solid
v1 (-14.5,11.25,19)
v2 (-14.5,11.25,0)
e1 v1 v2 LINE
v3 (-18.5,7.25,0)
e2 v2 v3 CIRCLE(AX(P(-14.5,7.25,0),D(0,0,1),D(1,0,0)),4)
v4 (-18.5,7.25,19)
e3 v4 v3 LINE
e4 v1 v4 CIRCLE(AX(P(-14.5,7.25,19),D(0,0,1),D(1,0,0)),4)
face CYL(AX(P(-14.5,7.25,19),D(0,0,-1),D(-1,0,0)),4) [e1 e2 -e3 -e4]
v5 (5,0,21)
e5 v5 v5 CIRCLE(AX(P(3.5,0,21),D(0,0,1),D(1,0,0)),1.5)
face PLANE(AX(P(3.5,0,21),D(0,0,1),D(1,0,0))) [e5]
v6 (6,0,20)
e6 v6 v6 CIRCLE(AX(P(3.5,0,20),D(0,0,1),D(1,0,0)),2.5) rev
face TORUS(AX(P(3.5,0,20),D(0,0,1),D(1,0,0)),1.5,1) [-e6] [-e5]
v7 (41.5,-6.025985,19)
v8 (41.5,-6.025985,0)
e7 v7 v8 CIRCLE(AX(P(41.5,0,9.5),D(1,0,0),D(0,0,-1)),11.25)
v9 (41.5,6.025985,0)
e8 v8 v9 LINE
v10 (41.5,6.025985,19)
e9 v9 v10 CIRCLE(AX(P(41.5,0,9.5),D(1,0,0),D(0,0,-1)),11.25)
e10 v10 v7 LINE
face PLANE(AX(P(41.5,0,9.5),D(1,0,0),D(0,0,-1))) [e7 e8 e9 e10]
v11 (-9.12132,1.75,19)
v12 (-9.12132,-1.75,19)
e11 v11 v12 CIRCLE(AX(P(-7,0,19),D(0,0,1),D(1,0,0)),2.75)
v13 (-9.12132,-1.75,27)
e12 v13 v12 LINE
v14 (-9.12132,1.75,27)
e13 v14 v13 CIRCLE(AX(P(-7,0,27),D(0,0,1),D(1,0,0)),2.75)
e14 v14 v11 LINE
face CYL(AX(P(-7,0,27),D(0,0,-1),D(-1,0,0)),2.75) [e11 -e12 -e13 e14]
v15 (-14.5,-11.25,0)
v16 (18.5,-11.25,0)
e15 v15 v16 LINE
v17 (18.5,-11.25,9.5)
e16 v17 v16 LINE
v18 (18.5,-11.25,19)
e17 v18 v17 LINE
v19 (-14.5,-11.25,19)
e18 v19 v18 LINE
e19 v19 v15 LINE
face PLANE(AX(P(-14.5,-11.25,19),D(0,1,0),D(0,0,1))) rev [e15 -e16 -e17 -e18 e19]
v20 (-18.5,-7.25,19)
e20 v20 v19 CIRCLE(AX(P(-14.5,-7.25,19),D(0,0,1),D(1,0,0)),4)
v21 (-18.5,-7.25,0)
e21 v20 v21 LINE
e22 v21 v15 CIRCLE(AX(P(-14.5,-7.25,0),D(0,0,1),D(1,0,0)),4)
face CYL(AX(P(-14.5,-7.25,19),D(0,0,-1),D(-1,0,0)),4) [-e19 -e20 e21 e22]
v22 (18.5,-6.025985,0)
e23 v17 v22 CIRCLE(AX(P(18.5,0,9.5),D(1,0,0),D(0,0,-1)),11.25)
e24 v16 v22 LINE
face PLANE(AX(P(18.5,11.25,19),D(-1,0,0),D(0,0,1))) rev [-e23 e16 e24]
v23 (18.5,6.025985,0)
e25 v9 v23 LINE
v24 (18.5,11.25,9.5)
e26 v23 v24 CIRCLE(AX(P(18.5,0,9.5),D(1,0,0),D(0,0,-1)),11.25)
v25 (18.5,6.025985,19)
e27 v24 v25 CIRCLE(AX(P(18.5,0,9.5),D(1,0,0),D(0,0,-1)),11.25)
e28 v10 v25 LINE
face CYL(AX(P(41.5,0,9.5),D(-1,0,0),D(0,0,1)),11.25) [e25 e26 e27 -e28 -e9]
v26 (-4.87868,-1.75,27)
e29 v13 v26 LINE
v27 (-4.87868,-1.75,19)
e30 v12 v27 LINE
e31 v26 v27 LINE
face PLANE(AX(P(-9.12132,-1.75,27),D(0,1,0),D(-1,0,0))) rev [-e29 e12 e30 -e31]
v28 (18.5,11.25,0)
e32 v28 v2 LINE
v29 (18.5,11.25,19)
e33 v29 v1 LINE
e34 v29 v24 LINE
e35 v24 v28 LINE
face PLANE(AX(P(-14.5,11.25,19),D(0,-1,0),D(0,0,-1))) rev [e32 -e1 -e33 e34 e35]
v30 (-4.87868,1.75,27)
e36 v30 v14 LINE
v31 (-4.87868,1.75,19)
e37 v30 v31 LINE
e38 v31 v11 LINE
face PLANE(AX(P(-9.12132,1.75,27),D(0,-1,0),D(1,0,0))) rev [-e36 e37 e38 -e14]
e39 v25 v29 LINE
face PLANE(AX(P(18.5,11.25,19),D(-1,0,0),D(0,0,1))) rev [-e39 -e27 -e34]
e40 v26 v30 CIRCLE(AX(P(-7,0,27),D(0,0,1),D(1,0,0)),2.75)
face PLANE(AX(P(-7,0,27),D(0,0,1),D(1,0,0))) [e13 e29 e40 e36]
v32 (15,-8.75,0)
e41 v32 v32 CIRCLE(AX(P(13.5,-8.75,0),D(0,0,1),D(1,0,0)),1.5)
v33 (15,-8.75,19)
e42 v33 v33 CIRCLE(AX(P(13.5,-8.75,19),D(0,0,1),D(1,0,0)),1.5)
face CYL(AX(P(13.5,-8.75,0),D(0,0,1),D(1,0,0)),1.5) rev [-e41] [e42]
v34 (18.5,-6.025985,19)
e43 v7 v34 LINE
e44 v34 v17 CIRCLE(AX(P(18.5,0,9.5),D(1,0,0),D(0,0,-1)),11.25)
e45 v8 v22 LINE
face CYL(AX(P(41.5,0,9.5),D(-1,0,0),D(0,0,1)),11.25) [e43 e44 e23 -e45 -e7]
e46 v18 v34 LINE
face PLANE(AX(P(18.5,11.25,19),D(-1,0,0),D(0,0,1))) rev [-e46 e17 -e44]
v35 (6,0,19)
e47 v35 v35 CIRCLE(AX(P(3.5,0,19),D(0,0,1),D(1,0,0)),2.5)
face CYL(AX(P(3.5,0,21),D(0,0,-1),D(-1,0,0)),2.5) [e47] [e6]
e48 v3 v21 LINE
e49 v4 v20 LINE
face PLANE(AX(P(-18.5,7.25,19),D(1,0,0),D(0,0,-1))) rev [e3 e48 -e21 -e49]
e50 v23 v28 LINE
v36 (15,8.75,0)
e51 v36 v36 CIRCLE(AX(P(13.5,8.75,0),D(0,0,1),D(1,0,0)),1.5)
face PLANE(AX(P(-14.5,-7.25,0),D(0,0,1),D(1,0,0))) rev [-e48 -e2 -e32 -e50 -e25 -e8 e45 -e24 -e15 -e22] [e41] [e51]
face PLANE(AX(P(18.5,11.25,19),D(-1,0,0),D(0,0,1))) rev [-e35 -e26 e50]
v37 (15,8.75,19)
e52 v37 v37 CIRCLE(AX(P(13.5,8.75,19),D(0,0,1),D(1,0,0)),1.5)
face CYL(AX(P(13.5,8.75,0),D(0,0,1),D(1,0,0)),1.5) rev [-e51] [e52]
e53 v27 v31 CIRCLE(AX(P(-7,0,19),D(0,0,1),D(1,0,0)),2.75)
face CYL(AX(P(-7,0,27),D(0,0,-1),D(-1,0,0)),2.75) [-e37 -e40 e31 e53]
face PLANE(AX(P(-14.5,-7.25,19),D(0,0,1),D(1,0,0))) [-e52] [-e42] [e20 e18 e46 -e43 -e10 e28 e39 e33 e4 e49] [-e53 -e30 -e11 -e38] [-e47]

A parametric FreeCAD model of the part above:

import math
import FreeCAD as App
import Part
import Sketcher
Q = App.Units.Quantity


def edges_at(feature, points):
    """Names of the edges that pass closest to the given points."""
    edges = feature.Shape.Edges
    near = lambda p: min(range(len(edges)), key=lambda i: edges[i].distToShape(Part.Vertex(*p))[0])
    return sorted({f"Edge{near(p) + 1}" for p in points})

doc = App.newDocument("Part")
body = doc.addObject("PartDesign::Body", "Body")

# Sketch on XY plane
sketch1 = body.newObject("Sketcher::SketchObject", "Sketch")
sketch1.AttachmentSupport = (doc.getObject("XY_Plane"), [""])
sketch1.MapMode = "FlatFace"
sketch1.addGeometry([
    Part.LineSegment(App.Vector(18.5, 11.2, 0), App.Vector(-14.5, 11.2, 0)),  # 0
    Part.ArcOfCircle(Part.Circle(App.Vector(-14.5, 7.3, 0), App.Vector(0, 0, 1), 4), math.radians(90), math.radians(180)),  # 1
    Part.LineSegment(App.Vector(-18.5, 7.2, 0), App.Vector(-18.5, -7.2, 0)),  # 2
    Part.ArcOfCircle(Part.Circle(App.Vector(-14.5, -7.3, 0), App.Vector(0, 0, 1), 4), math.radians(180), math.radians(270)),  # 3
    Part.LineSegment(App.Vector(-14.5, -11.2, 0), App.Vector(18.5, -11.2, 0)),  # 4
    Part.LineSegment(App.Vector(18.5, -11.2, 0), App.Vector(18.5, 11.2, 0)),  # 5
], False)
sketch1.addConstraint([
    Sketcher.Constraint("Tangent", 0, 2, 1, 1),
    Sketcher.Constraint("Tangent", 1, 2, 2, 1),
    Sketcher.Constraint("Tangent", 2, 2, 3, 1),
    Sketcher.Constraint("Tangent", 3, 2, 4, 1),
    Sketcher.Constraint("Coincident", 4, 2, 5, 1),
    Sketcher.Constraint("Coincident", 5, 2, 0, 1),
    Sketcher.Constraint("Horizontal", 0),
    Sketcher.Constraint("Vertical", 2),
    Sketcher.Constraint("Horizontal", 4),
    Sketcher.Constraint("Vertical", 5),
    Sketcher.Constraint("Equal", 1, 3),
    Sketcher.Constraint("Radius", 1, Q("4 mm")),
    Sketcher.Constraint("DistanceX", 0, 2, 0, 1, Q("33 mm")),
    Sketcher.Constraint("DistanceY", 2, 2, 2, 1, Q("14.5 mm")),
    Sketcher.Constraint("DistanceX", 1, 3, -1, 1, Q("14.5 mm")),
    Sketcher.Constraint("DistanceY", -1, 1, 1, 3, Q("7.25 mm")),
])
pad1 = body.newObject("PartDesign::Pad", "Pad")
pad1.Profile = sketch1
pad1.Length = 19

# Sketch on YZ plane
sketch2 = body.newObject("Sketcher::SketchObject", "Sketch001")
sketch2.AttachmentSupport = (doc.getObject("YZ_Plane"), [""])
sketch2.MapMode = "FlatFace"
sketch2.AttachmentOffset = App.Placement(App.Vector(0, 0, 18.5), App.Rotation())
sketch2.addGeometry([
    Part.LineSegment(App.Vector(6, 19, 0), App.Vector(-6, 19, 0)),
    Part.ArcOfCircle(Part.Circle(App.Vector(0, 10, 0), App.Vector(0, 0, 1), 11), math.radians(122), math.radians(238)),
    Part.LineSegment(App.Vector(-6, 0, 0), App.Vector(6, 0, 0)),
    Part.ArcOfCircle(Part.Circle(App.Vector(0, 10, 0), App.Vector(0, 0, 1), 11), math.radians(-58), math.radians(58)),
], False)
sketch2.addConstraint([
    Sketcher.Constraint("Coincident", 0, 2, 1, 1),
    Sketcher.Constraint("Coincident", 1, 2, 2, 1),
    Sketcher.Constraint("Coincident", 2, 2, 3, 1),
    Sketcher.Constraint("Coincident", 3, 2, 0, 1),
    Sketcher.Constraint("Horizontal", 0),
    Sketcher.Constraint("Horizontal", 2),
    Sketcher.Constraint("Coincident", 3, 3, 1, 3),
    Sketcher.Constraint("Equal", 1, 3),
    Sketcher.Constraint("Symmetric", 1, 2, 2, 2, -1, 1),
    Sketcher.Constraint("Vertical", 0, 2, 1, 2),
    Sketcher.Constraint("Radius", 1, Q("11.25 mm")),
    Sketcher.Constraint("DistanceY", -1, 1, 0, 2, Q("19 mm")),
])
pad2 = body.newObject("PartDesign::Pad", "Pad001")
pad2.Profile = sketch2
pad2.Length = 23

# Sketch on XY plane
sketch3 = body.newObject("Sketcher::SketchObject", "Sketch002")
sketch3.AttachmentSupport = (doc.getObject("XY_Plane"), [""])
sketch3.MapMode = "FlatFace"
sketch3.AttachmentOffset = App.Placement(App.Vector(0, 0, 19), App.Rotation())
sketch3.addGeometry([
    Part.LineSegment(App.Vector(-4.9, 1.8, 0), App.Vector(-9.1, 1.8, 0)),
    Part.ArcOfCircle(Part.Circle(App.Vector(-7, 0, 0), App.Vector(0, 0, 1), 2.8), math.radians(140), math.radians(220)),
    Part.LineSegment(App.Vector(-9.1, -1.8, 0), App.Vector(-4.9, -1.8, 0)),
    Part.ArcOfCircle(Part.Circle(App.Vector(-7, 0, 0), App.Vector(0, 0, 1), 2.8), math.radians(-40), math.radians(40)),
], False)
sketch3.addConstraint([
    Sketcher.Constraint("Coincident", 0, 2, 1, 1),
    Sketcher.Constraint("Coincident", 1, 2, 2, 1),
    Sketcher.Constraint("Coincident", 2, 2, 3, 1),
    Sketcher.Constraint("Coincident", 3, 2, 0, 1),
    Sketcher.Constraint("Horizontal", 0),
    Sketcher.Constraint("Horizontal", 2),
    Sketcher.Constraint("Coincident", 3, 3, 1, 3),
    Sketcher.Constraint("Equal", 1, 3),
    Sketcher.Constraint("Symmetric", 0, 2, 1, 2, -1),
    Sketcher.Constraint("Radius", 1, Q("2.75 mm")),
    Sketcher.Constraint("DistanceX", 1, 3, -1, 1, Q("7 mm")),
    Sketcher.Constraint("DistanceY", 1, 2, 0, 2, Q("3.5 mm")),
])
pad3 = body.newObject("PartDesign::Pad", "Pad002")
pad3.Profile = sketch3
pad3.Length = 8

# Sketch on XY plane
sketch4 = body.newObject("Sketcher::SketchObject", "Sketch003")
sketch4.AttachmentSupport = (doc.getObject("XY_Plane"), [""])
sketch4.MapMode = "FlatFace"
sketch4.AttachmentOffset = App.Placement(App.Vector(0, 0, 19), App.Rotation())
sketch4.addGeometry(Part.Circle(App.Vector(3.5, 0, 0), App.Vector(0, 0, 1), 2.5), False)
sketch4.addConstraint([
    Sketcher.Constraint("PointOnObject", 0, 3, -1),
    Sketcher.Constraint("Diameter", 0, Q("5 mm")),
    Sketcher.Constraint("DistanceX", -1, 1, 0, 3, Q("3.5 mm")),
])
pad4 = body.newObject("PartDesign::Pad", "Pad003")
pad4.Profile = sketch4
pad4.Length = 2
doc.recompute()

fillet = body.newObject("PartDesign::Fillet", "Fillet")
fillet.Base = (pad4, edges_at(pad4, [(1, 0, 21)]))
fillet.Radius = 1

# Sketch on XY plane
sketch5 = body.newObject("Sketcher::SketchObject", "Sketch004")
sketch5.AttachmentSupport = (doc.getObject("XY_Plane"), [""])
sketch5.MapMode = "FlatFace"
sketch5.AttachmentOffset = App.Placement(App.Vector(0, 0, 19), App.Rotation())
sketch5.addGeometry([
    Part.Circle(App.Vector(13.5, 8.8, 0), App.Vector(0, 0, 1), 1.5),
    Part.Circle(App.Vector(13.5, -8.8, 0), App.Vector(0, 0, 1), 1.5),
], False)
sketch5.addConstraint([
    Sketcher.Constraint("Equal", 0, 1),
    Sketcher.Constraint("Symmetric", 0, 3, 1, 3, -1),
    Sketcher.Constraint("Diameter", 0, Q("3 mm")),
    Sketcher.Constraint("DistanceX", -1, 1, 0, 3, Q("13.5 mm")),
    Sketcher.Constraint("DistanceY", 1, 3, 0, 3, Q("17.5 mm")),
])
pocket1 = body.newObject("PartDesign::Pocket", "Pocket")
pocket1.Profile = sketch5
pocket1.Type = "ThroughAll"

doc.recompute()
